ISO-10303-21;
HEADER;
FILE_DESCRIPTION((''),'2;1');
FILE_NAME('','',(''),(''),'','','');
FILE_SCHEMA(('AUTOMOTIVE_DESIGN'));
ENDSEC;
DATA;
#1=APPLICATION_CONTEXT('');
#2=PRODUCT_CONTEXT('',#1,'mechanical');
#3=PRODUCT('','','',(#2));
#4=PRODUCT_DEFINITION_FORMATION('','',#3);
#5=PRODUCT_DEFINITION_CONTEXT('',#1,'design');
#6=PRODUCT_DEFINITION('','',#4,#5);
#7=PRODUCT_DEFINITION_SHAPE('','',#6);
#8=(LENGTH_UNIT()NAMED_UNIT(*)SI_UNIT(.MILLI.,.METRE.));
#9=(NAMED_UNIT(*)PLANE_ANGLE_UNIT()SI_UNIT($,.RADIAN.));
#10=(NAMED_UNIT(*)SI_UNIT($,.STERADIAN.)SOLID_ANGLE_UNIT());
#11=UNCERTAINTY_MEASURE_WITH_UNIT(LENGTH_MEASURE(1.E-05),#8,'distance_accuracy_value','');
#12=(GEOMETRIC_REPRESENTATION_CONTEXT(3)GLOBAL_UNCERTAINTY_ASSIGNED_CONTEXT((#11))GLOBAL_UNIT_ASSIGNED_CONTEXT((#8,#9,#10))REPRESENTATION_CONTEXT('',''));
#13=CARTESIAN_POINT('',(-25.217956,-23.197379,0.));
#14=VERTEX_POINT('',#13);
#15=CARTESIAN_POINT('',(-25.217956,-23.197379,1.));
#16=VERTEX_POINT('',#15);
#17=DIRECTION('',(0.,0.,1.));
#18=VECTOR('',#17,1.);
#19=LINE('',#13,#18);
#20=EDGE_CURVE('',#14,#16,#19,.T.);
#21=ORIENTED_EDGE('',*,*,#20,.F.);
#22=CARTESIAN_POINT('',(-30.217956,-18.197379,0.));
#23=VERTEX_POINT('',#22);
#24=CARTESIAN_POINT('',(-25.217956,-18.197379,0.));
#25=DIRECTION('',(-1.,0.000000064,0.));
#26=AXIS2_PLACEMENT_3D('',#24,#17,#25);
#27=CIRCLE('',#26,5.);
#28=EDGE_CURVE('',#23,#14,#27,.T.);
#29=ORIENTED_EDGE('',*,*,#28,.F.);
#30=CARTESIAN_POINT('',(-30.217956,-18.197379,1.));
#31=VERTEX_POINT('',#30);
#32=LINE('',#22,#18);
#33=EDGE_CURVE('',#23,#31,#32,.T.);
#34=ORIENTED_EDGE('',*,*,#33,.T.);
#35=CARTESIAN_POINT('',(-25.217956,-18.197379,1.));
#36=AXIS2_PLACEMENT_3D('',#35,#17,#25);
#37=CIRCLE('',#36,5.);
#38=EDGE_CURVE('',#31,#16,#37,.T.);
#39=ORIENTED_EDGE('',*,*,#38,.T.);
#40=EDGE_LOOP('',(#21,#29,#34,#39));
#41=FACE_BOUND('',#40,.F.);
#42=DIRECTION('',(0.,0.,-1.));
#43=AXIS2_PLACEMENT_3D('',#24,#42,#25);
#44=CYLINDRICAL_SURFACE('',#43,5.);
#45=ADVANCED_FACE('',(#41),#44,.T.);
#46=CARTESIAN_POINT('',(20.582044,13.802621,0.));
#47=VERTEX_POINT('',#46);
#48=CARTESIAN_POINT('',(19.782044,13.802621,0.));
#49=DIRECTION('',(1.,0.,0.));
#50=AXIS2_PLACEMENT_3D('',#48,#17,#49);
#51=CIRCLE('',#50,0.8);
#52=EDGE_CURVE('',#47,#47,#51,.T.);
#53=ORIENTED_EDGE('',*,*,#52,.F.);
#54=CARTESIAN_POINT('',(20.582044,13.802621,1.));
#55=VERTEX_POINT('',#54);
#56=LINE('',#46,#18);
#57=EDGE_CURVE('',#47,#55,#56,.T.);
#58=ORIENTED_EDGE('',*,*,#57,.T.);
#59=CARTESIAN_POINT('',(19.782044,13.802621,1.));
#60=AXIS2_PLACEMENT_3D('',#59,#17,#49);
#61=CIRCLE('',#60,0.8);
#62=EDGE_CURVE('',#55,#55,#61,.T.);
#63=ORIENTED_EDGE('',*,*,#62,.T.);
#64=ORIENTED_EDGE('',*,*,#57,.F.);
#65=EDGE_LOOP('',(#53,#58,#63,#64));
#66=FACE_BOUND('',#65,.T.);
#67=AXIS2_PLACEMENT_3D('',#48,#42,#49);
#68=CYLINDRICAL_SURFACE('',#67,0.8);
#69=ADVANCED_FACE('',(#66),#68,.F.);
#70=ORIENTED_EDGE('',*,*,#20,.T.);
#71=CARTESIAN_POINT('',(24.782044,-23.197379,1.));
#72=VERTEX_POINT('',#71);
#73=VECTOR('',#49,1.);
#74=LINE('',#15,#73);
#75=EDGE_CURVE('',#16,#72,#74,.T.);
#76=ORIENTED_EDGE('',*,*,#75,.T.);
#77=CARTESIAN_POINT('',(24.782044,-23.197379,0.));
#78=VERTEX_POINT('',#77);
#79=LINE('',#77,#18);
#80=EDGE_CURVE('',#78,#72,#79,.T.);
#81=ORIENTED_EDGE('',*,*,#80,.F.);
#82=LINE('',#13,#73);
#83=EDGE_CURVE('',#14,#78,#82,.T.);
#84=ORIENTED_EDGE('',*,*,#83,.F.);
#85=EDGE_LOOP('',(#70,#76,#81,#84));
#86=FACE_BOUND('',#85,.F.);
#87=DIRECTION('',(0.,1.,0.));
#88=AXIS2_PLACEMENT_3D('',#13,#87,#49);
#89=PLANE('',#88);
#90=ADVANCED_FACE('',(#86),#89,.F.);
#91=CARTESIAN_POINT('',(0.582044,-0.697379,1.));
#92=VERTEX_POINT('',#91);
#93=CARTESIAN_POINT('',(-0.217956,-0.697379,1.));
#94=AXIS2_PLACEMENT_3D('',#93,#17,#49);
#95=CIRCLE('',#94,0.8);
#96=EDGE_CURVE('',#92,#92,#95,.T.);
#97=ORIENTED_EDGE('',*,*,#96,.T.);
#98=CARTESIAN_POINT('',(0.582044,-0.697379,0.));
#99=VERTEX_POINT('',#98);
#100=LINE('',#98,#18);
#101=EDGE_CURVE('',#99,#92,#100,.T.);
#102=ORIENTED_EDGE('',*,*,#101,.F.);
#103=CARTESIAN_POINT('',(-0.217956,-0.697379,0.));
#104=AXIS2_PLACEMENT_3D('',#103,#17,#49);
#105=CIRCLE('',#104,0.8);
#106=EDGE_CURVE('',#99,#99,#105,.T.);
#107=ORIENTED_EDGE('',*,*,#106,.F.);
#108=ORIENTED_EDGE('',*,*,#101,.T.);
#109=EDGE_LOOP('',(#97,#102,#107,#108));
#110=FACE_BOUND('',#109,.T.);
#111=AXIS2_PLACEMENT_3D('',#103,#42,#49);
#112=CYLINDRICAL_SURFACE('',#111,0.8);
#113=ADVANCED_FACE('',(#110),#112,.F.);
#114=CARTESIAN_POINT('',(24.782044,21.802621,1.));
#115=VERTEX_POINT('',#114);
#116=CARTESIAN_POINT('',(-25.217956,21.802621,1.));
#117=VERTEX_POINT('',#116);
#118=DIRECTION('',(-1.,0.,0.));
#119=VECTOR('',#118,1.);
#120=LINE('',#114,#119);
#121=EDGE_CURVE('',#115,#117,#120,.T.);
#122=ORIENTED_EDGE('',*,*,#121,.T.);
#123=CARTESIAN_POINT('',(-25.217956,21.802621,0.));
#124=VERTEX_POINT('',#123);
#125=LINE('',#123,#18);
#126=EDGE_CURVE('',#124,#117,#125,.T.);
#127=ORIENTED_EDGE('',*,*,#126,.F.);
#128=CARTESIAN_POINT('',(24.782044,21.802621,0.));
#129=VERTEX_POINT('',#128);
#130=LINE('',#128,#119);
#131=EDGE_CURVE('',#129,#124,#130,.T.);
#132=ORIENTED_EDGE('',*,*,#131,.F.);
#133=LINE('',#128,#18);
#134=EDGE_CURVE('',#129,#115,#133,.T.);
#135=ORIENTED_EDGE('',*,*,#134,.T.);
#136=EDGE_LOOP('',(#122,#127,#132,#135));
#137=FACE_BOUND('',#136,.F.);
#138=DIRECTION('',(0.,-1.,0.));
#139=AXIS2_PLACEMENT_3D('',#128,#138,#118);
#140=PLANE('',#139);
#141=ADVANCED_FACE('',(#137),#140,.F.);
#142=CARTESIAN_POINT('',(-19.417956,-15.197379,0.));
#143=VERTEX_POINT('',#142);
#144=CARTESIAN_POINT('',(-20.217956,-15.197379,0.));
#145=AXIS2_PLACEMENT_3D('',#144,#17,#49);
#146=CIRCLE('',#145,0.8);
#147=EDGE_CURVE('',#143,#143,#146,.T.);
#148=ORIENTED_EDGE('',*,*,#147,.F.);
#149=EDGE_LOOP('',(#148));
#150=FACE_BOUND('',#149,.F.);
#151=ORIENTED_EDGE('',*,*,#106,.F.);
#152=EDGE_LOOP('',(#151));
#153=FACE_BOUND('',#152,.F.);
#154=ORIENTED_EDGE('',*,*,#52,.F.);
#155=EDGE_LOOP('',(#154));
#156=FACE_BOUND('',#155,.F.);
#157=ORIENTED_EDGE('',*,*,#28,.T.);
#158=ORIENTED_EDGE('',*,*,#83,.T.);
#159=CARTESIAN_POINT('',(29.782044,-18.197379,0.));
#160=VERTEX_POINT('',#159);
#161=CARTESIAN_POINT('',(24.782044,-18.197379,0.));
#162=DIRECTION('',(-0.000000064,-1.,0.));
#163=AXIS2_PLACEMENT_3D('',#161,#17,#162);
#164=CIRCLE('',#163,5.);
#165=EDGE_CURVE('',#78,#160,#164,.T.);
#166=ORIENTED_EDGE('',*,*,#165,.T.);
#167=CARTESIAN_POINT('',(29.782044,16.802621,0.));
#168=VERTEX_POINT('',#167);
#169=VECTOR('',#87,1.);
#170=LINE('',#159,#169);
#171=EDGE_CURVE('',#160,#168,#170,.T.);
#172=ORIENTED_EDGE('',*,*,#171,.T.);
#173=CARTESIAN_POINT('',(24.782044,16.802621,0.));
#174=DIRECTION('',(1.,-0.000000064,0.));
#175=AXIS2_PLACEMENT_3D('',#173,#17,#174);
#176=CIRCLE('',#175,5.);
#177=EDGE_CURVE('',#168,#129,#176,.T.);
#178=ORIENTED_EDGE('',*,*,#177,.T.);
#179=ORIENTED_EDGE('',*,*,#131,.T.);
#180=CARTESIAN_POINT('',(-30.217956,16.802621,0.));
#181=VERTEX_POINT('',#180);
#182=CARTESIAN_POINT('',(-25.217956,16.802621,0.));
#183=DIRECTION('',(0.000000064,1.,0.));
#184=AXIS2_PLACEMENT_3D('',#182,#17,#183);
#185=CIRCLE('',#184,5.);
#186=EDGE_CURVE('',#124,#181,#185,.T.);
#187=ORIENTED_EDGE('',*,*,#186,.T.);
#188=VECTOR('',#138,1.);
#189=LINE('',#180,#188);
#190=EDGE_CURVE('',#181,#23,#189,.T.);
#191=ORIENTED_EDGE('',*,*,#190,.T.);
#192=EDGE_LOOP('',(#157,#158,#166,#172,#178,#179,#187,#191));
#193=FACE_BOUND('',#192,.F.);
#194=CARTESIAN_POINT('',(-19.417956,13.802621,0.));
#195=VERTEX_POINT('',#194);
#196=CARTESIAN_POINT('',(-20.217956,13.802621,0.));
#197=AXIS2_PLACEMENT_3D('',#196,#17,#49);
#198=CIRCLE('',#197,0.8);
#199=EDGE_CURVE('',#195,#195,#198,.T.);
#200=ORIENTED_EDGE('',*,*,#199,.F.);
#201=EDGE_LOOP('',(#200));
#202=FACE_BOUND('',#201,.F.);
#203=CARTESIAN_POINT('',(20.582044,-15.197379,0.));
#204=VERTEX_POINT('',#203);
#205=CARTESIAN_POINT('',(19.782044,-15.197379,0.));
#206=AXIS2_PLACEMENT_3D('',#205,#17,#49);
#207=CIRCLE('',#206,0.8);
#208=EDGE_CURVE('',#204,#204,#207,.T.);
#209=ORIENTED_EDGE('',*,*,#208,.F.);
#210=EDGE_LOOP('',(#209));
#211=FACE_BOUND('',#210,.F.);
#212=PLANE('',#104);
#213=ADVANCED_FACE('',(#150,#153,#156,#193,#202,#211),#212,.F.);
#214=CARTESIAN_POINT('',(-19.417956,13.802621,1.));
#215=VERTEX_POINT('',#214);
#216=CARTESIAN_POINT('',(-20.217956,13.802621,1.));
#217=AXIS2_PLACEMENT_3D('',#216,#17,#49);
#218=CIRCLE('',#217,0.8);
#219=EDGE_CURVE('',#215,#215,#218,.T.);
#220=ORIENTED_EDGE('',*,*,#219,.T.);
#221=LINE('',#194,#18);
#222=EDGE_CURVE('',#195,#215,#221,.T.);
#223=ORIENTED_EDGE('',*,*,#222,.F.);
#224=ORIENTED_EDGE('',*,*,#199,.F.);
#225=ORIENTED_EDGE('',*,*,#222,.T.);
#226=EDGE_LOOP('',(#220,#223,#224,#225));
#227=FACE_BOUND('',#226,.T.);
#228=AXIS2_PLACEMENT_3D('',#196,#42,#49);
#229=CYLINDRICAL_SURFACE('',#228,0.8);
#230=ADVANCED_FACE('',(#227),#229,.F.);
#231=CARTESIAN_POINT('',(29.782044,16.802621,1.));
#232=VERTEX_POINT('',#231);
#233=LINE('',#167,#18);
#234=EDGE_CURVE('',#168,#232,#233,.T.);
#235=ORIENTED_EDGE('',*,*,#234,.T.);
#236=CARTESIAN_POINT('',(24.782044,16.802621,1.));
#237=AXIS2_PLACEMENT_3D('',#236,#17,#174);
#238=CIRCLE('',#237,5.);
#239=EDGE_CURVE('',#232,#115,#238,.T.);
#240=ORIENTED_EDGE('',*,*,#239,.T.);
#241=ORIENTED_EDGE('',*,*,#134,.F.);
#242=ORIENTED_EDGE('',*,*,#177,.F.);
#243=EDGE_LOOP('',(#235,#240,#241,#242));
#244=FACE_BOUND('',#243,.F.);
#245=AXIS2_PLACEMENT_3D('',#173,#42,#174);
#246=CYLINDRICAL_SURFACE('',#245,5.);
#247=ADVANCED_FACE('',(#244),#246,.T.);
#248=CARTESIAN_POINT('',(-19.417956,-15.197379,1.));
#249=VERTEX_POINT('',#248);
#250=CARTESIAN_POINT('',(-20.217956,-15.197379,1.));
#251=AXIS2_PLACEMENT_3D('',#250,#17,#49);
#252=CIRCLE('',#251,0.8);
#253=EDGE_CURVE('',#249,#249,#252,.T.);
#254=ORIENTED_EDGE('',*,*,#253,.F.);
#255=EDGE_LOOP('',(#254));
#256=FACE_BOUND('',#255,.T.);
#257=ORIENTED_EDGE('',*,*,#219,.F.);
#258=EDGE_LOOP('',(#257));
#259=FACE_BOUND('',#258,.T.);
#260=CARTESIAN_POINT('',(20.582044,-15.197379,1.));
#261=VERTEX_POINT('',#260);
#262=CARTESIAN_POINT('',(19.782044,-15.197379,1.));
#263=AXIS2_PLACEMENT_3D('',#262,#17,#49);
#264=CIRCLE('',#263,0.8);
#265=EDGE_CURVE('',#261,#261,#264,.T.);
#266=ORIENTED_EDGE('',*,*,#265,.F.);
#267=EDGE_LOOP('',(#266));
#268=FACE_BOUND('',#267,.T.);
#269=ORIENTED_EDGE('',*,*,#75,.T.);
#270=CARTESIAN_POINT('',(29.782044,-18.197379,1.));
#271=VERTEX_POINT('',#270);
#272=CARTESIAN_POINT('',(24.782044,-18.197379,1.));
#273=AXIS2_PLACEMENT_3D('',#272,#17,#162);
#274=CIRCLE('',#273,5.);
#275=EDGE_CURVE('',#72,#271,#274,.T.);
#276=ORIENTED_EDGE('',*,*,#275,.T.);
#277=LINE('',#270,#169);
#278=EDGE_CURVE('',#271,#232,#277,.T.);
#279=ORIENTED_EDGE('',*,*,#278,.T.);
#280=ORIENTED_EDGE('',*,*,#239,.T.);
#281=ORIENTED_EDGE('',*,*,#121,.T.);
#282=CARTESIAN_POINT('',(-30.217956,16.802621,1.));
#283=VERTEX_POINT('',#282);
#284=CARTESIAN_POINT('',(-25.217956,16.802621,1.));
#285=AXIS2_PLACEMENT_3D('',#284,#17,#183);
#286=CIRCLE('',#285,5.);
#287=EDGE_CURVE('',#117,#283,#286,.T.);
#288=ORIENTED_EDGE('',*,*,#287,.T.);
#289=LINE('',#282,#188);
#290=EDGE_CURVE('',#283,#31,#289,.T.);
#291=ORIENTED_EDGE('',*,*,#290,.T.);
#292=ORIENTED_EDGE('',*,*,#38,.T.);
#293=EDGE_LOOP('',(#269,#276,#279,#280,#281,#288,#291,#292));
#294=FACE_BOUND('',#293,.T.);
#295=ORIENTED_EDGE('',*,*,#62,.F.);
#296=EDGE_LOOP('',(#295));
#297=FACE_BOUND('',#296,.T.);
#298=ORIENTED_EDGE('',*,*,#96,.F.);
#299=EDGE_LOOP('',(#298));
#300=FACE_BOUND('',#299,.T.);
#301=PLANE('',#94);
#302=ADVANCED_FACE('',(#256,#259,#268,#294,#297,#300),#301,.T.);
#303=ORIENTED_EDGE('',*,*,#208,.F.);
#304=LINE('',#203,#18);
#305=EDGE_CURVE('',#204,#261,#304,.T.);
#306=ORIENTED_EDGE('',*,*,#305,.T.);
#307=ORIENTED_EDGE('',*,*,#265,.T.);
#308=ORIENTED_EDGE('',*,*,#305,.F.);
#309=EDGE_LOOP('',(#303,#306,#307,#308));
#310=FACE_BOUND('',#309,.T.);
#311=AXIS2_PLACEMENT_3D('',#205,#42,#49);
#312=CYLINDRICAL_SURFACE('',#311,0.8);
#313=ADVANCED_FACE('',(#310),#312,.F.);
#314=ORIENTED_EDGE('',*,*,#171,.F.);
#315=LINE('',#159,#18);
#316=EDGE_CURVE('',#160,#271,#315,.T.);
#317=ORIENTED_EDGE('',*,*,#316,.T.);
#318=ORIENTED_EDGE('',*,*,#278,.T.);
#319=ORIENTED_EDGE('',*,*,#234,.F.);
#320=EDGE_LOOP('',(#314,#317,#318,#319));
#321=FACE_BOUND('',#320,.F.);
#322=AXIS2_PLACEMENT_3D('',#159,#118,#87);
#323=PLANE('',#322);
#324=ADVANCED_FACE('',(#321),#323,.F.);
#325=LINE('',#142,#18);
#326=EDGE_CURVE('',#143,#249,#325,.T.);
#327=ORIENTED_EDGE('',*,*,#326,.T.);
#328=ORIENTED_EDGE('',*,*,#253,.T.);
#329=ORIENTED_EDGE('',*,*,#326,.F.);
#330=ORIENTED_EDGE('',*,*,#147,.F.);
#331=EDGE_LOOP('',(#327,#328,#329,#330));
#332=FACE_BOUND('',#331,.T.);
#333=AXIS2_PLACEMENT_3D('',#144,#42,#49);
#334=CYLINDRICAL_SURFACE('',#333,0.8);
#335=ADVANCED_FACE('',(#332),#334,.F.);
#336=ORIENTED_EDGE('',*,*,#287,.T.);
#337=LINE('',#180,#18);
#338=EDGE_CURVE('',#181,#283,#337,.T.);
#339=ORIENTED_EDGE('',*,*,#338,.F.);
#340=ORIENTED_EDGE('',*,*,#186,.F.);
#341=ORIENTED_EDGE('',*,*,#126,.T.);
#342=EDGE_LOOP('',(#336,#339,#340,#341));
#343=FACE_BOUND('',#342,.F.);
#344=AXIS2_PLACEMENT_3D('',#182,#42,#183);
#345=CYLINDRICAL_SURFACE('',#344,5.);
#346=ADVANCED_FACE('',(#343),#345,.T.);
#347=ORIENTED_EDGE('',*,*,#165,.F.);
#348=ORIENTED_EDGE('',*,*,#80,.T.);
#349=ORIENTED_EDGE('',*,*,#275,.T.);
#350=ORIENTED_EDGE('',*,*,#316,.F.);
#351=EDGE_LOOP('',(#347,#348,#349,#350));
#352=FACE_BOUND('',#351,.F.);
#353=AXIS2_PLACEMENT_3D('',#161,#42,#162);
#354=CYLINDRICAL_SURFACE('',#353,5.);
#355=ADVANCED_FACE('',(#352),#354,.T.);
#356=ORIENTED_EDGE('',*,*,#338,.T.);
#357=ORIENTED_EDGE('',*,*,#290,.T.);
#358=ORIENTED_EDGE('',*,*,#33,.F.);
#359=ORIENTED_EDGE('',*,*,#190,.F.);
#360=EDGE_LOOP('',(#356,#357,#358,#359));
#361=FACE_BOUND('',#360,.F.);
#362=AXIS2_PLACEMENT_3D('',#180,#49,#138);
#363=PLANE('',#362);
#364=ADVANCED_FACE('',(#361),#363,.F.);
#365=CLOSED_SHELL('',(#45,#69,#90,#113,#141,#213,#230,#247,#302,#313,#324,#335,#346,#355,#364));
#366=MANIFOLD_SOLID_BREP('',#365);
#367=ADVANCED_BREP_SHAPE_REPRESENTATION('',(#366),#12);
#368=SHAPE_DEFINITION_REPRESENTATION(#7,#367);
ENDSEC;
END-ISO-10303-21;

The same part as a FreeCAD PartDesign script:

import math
import FreeCAD as App
import Part
import Sketcher

V = App.Vector
Q = App.Units.Quantity

doc = App.newDocument("Part")
body = doc.addObject("PartDesign::Body", "Body")

sketch1 = body.newObject("Sketcher::SketchObject", "Sketch")
sketch1.AttachmentSupport = (doc.getObject("XY_Plane"), [""])
sketch1.MapMode = "FlatFace"
sketch1.addGeometry([
    Part.LineSegment(V(24.782044, 21.802621, 0), V(-25.217956, 21.802621, 0)),
    Part.ArcOfCircle(Part.Circle(V(-25.217956, 16.802621, 0), V(0, 0, 1), 5), math.radians(89.999996), math.radians(180.000004)),
    Part.LineSegment(V(-30.217956, 16.802621, 0), V(-30.217956, -18.197379, 0)),
    Part.ArcOfCircle(Part.Circle(V(-25.217956, -18.197379, 0), V(0, 0, 1), 5), math.radians(179.999996), math.radians(270.000004)),
    Part.LineSegment(V(-25.217956, -23.197379, 0), V(24.782044, -23.197379, 0)),
    Part.ArcOfCircle(Part.Circle(V(24.782044, -18.197379, 0), V(0, 0, 1), 5), math.radians(-90.000004), math.radians(0.000004)),
    Part.LineSegment(V(29.782044, -18.197379, 0), V(29.782044, 16.802621, 0)),
    Part.ArcOfCircle(Part.Circle(V(24.782044, 16.802621, 0), V(0, 0, 1), 5), math.radians(-0.000004), math.radians(90.000004)),
    Part.Circle(V(-20.217956, -15.197379, 0), V(0, 0, 1), 0.8),
    Part.Circle(V(19.782044, -15.197379, 0), V(0, 0, 1), 0.8),
    Part.Circle(V(-20.217956, 13.802621, 0), V(0, 0, 1), 0.8),
    Part.Circle(V(-0.217956, -0.697379, 0), V(0, 0, 1), 0.8),
    Part.Circle(V(19.782044, 13.802621, 0), V(0, 0, 1), 0.8),
], False)
sketch1.addConstraint([
    Sketcher.Constraint("Tangent", 0, 2, 1, 1),
    Sketcher.Constraint("Tangent", 1, 2, 2, 1),
    Sketcher.Constraint("Tangent", 2, 2, 3, 1),
    Sketcher.Constraint("Tangent", 3, 2, 4, 1),
    Sketcher.Constraint("Tangent", 4, 2, 5, 1),
    Sketcher.Constraint("Tangent", 5, 2, 6, 1),
    Sketcher.Constraint("Tangent", 6, 2, 7, 1),
    Sketcher.Constraint("Tangent", 7, 2, 0, 1),
    Sketcher.Constraint("Horizontal", 0),
    Sketcher.Constraint("Vertical", 2),
    Sketcher.Constraint("Horizontal", 4),
    Sketcher.Constraint("Vertical", 6),
    Sketcher.Constraint("Equal", 1, 3),
    Sketcher.Constraint("Equal", 3, 5),
    Sketcher.Constraint("Equal", 5, 7),
    Sketcher.Constraint("Equal", 8, 9),
    Sketcher.Constraint("Equal", 9, 10),
    Sketcher.Constraint("Equal", 10, 11),
    Sketcher.Constraint("Equal", 11, 12),
    Sketcher.Constraint("Horizontal", 8, 3, 9, 3),
    Sketcher.Constraint("Horizontal", 10, 3, 12, 3),
    Sketcher.Constraint("Vertical", 8, 3, 10, 3),
    Sketcher.Constraint("Vertical", 9, 3, 12, 3),
    Sketcher.Constraint("Radius", 1, Q("5 mm")),
    Sketcher.Constraint("Diameter", 8, Q("1.6 mm")),
    Sketcher.Constraint("DistanceX", 0, 2, 0, 1, Q("50 mm")),
    Sketcher.Constraint("DistanceY", 2, 2, 2, 1, Q("35 mm")),
    Sketcher.Constraint("DistanceX", 3, 3, 8, 3, Q("5 mm")),
    Sketcher.Constraint("DistanceY", 3, 3, 8, 3, Q("3 mm")),
    Sketcher.Constraint("DistanceX", 9, 3, 5, 3, Q("5 mm")),
    Sketcher.Constraint("DistanceY", 10, 3, 1, 3, Q("3 mm")),
    Sketcher.Constraint("DistanceX", 8, 3, 11, 3, Q("20 mm")),
    Sketcher.Constraint("DistanceY", 8, 3, 11, 3, Q("14.5 mm")),
    Sketcher.Constraint("DistanceY", -1, 1, 1, 3, Q("16.802621 mm")),
    Sketcher.Constraint("DistanceX", 1, 3, -1, 1, Q("25.217956 mm")),
])
pad1 = body.newObject("PartDesign::Pad", "Pad")
pad1.Profile = sketch1
pad1.Length = 1

doc.recompute()
